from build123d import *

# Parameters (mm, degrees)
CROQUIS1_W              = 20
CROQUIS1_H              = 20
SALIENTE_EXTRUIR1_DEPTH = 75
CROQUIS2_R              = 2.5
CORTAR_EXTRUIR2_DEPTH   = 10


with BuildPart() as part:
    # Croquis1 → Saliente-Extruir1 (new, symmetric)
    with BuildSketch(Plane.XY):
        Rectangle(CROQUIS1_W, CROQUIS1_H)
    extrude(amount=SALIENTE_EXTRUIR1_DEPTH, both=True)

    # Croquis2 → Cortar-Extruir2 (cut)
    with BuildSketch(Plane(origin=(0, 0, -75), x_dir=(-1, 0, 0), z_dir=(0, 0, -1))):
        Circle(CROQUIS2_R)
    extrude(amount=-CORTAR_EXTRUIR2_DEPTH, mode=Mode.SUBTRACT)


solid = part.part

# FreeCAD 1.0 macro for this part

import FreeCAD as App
import Part
import Sketcher
Q = App.Units.Quantity

doc = App.newDocument("Part")
body = doc.addObject("PartDesign::Body", "Body")

# Sketch on XY plane
sketch1 = doc.addObject("Sketcher::SketchObject", "Sketch")
body.addObject(sketch1)
sketch1.AttachmentSupport = (doc.XY_Plane, [""])
sketch1.MapMode = "FlatFace"
sketch1.addGeometry(Part.LineSegment(App.Vector(-10, 10, 0), App.Vector(-10, -10, 0)), False)
sketch1.addGeometry(Part.LineSegment(App.Vector(-10, -10, 0), App.Vector(10, -10, 0)), False)
sketch1.addGeometry(Part.LineSegment(App.Vector(10, -10, 0), App.Vector(10, 10, 0)), False)
sketch1.addGeometry(Part.LineSegment(App.Vector(10, 10, 0), App.Vector(-10, 10, 0)), False)
sketch1.addConstraint(Sketcher.Constraint("Coincident", 0, 2, 1, 1))
sketch1.addConstraint(Sketcher.Constraint("Coincident", 1, 2, 2, 1))
sketch1.addConstraint(Sketcher.Constraint("Coincident", 2, 2, 3, 1))
sketch1.addConstraint(Sketcher.Constraint("Coincident", 3, 2, 0, 1))
sketch1.addConstraint(Sketcher.Constraint("Vertical", 0))
sketch1.addConstraint(Sketcher.Constraint("Horizontal", 1))
sketch1.addConstraint(Sketcher.Constraint("Vertical", 2))
sketch1.addConstraint(Sketcher.Constraint("Horizontal", 3))
sketch1.addConstraint(Sketcher.Constraint("Symmetric", 0, 2, 2, 2, -1, 1))
sketch1.addConstraint(Sketcher.Constraint("Equal", 3, 0))
sketch1.addConstraint(Sketcher.Constraint("DistanceX", 1, 1, 1, 2, Q("20 mm")))
pad1 = doc.addObject("PartDesign::Pad", "Pad")
body.addObject(pad1)
pad1.Profile = sketch1
pad1.Length = 150
pad1.Midplane = True

# Sketch on XY plane
sketch2 = doc.addObject("Sketcher::SketchObject", "Sketch001")
body.addObject(sketch2)
sketch2.AttachmentSupport = (doc.XY_Plane, [""])
sketch2.MapMode = "FlatFace"
sketch2.AttachmentOffset = App.Placement(App.Vector(0, 0, -75), App.Rotation())
sketch2.addGeometry(Part.Circle(App.Vector(0, 0, 0), App.Vector(0, 0, 1), 2.5), False)
sketch2.addConstraint(Sketcher.Constraint("Coincident", 0, 3, -1, 1))
sketch2.addConstraint(Sketcher.Constraint("Diameter", 0, Q("5 mm")))
pocket1 = doc.addObject("PartDesign::Pocket", "Pocket")
body.addObject(pocket1)
pocket1.Profile = sketch2
pocket1.Length = 10
pocket1.Reversed = True

doc.recompute()
